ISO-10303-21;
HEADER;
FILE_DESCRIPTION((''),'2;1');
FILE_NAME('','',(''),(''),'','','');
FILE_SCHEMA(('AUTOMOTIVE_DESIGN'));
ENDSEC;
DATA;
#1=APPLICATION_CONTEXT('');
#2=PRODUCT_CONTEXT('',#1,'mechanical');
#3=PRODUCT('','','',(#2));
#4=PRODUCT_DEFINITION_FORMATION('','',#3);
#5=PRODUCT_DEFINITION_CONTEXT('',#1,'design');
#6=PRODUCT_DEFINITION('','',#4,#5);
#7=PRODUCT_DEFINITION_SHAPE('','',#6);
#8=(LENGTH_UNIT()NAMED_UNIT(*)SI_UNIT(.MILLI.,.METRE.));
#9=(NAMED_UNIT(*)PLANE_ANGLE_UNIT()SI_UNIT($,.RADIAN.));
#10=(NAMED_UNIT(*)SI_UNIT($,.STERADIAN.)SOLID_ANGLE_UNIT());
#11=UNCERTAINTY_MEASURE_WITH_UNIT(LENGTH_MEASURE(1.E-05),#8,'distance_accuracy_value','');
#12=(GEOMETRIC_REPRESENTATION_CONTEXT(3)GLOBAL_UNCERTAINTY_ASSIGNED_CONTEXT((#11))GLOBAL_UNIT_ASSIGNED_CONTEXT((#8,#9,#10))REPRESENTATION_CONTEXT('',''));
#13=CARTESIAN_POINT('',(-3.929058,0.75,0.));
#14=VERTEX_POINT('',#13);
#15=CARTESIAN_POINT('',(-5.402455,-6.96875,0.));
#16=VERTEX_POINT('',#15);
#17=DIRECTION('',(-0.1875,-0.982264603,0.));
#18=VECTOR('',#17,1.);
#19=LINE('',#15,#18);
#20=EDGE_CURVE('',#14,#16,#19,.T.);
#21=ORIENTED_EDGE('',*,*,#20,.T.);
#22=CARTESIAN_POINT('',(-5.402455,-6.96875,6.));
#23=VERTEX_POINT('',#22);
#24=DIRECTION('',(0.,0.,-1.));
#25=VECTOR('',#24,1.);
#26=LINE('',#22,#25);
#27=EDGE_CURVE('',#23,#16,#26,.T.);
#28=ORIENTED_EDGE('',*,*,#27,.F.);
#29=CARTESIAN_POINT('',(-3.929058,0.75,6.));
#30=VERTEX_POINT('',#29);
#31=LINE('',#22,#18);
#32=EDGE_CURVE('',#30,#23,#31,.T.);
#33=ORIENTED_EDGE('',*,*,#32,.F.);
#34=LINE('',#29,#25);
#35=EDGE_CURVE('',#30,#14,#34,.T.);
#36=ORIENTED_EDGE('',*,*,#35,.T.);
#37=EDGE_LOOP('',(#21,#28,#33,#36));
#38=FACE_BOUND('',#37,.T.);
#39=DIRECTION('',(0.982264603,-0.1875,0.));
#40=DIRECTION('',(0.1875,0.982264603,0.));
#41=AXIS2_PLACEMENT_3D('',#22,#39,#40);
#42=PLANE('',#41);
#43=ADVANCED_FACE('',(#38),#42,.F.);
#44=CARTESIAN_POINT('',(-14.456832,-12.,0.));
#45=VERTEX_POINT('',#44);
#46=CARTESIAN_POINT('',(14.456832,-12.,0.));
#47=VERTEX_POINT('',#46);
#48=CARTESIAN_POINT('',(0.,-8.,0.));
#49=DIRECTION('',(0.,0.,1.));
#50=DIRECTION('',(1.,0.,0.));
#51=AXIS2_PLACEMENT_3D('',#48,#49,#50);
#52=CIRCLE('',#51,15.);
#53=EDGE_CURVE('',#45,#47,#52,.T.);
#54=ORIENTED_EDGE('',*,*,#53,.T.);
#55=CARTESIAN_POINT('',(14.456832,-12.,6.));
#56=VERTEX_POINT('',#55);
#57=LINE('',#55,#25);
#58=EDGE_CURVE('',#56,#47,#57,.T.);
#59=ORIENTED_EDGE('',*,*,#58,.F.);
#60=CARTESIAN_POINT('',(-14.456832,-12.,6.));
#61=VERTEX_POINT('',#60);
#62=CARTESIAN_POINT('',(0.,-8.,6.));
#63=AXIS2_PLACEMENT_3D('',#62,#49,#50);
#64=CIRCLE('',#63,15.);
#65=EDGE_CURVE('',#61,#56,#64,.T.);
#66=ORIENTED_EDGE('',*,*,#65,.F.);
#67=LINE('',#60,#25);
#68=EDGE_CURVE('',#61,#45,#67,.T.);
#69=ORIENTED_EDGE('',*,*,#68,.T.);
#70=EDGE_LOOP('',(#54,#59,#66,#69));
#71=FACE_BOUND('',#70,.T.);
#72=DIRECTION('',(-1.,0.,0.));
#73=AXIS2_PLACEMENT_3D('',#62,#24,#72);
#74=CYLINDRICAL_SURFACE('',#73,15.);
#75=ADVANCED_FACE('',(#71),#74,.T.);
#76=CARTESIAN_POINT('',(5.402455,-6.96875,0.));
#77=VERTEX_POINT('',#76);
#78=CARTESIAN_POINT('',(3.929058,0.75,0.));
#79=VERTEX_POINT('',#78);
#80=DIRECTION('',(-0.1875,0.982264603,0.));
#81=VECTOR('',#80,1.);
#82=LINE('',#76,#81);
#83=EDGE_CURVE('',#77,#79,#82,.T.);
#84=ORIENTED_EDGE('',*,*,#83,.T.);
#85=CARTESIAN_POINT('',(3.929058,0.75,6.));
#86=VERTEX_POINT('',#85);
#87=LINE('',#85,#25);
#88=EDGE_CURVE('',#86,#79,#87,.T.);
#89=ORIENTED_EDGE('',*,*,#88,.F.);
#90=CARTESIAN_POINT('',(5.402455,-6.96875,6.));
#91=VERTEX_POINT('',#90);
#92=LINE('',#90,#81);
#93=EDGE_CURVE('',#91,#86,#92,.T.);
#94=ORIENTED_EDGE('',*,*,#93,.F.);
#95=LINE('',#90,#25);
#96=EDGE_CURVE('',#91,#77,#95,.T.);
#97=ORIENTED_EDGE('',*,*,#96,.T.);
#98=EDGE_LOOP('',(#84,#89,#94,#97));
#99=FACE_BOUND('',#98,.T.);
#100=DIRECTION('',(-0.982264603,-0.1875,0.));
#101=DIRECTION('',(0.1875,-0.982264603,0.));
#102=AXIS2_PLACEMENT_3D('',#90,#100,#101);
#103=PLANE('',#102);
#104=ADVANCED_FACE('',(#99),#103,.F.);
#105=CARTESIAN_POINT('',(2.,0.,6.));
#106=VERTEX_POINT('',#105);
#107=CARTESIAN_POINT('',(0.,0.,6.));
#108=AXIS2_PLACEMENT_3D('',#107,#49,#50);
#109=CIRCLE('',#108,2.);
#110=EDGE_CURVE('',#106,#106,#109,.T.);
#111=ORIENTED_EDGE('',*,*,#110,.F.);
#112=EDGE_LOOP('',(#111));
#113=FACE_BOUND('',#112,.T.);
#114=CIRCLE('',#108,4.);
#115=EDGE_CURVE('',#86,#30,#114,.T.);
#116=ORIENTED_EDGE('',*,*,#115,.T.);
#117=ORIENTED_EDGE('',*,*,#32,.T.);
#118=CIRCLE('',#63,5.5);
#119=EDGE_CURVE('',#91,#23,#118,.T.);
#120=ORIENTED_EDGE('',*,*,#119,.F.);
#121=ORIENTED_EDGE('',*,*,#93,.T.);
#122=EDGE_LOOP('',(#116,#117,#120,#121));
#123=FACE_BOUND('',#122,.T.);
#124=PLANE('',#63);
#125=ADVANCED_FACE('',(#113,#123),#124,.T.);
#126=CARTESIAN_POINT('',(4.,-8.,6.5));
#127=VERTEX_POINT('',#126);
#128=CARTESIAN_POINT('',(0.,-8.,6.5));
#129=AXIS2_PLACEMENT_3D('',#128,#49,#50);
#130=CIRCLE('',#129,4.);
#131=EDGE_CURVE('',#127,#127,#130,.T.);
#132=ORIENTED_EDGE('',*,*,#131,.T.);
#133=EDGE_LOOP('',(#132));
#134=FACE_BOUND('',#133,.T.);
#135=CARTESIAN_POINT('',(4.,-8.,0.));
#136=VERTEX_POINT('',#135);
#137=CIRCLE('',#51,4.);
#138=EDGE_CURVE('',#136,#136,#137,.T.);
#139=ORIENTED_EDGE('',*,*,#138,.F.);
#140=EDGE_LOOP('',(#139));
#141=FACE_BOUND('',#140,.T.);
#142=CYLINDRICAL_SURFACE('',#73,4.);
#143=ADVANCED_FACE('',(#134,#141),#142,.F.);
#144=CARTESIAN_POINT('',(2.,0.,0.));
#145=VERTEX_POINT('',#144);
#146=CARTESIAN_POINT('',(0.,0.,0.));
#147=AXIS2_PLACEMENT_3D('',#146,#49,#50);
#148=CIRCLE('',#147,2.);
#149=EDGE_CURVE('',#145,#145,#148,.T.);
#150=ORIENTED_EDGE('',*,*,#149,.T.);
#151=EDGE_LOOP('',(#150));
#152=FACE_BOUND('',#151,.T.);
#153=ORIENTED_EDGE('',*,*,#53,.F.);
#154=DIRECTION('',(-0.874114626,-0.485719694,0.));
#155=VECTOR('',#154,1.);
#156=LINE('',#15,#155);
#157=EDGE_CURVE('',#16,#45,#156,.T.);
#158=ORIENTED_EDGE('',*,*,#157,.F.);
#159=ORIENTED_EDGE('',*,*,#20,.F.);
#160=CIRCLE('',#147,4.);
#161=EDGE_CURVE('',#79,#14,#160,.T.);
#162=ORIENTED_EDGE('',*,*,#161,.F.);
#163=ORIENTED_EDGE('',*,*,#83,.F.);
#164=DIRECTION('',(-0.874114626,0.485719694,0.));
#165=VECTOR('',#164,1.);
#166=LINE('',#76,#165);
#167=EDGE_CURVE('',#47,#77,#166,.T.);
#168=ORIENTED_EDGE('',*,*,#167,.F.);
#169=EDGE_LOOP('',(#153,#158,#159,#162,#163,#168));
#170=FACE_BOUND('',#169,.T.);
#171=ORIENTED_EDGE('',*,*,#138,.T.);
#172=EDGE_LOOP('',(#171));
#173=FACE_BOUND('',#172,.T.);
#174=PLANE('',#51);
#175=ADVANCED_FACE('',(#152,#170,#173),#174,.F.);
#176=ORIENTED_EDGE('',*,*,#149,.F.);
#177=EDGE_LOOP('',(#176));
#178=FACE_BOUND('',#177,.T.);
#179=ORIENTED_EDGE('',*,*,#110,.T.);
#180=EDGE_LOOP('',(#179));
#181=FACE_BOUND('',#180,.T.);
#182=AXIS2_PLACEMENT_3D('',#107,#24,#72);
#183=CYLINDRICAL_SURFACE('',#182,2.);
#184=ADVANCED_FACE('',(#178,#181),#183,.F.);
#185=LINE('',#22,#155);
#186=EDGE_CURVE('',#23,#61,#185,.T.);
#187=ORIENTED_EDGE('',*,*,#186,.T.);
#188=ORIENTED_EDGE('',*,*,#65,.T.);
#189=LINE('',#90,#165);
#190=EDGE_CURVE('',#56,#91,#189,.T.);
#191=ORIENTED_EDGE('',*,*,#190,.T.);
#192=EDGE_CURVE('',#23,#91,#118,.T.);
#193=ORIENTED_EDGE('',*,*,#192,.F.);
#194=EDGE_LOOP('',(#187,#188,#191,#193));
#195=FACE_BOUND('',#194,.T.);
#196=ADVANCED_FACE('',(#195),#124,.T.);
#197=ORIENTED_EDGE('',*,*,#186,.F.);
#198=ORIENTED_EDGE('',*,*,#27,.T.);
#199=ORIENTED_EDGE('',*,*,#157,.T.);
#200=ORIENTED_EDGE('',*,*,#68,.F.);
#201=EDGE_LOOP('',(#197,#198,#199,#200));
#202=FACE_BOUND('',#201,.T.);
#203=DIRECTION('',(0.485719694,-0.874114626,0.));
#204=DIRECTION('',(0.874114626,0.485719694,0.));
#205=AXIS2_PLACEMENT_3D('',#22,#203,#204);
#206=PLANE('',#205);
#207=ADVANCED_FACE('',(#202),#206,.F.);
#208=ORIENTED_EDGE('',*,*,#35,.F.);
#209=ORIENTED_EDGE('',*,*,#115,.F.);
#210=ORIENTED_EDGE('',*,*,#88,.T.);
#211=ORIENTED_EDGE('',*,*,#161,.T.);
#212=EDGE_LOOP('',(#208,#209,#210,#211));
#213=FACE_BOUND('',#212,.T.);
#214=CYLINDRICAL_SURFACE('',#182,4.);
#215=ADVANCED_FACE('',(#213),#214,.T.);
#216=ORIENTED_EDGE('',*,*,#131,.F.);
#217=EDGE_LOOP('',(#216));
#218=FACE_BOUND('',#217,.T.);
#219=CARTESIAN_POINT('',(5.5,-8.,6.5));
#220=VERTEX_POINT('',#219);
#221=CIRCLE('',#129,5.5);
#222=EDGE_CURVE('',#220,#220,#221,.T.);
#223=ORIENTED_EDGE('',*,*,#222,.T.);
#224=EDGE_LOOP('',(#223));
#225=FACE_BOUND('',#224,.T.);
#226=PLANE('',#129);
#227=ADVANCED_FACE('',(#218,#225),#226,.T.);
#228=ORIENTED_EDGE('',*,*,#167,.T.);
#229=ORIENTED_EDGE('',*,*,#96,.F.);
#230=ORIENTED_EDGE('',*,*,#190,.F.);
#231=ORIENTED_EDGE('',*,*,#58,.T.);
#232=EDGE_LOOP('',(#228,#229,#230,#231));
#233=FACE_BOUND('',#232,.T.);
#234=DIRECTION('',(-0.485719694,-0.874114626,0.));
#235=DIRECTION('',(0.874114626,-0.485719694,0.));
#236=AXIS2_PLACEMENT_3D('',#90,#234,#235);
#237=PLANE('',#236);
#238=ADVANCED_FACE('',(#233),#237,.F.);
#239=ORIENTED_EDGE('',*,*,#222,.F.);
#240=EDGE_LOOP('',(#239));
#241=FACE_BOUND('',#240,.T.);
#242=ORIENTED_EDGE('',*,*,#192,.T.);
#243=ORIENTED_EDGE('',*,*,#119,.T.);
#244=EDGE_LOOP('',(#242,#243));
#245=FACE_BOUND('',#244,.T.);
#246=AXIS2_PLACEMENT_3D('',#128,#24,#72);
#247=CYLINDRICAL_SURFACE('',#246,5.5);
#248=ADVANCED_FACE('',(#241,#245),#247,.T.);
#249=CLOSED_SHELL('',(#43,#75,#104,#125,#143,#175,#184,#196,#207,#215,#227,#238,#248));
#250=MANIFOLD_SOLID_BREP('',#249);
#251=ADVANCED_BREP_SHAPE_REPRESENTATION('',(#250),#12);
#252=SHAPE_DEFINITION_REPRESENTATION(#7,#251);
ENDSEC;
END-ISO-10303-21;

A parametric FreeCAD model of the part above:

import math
import FreeCAD as App
import Part
import Sketcher

V = App.Vector
Q = App.Units.Quantity

doc = App.newDocument("Part")
params = doc.addObject("Spreadsheet::Sheet", "Params")
for row, (alias, value) in enumerate([
    ("sketch1_diameter", "8 mm"),
    ("sketch1_diameter2", "4 mm"),
    ("sketch1_radius", "15 mm"),
    ("pad1_length", "6 mm"),
    ("sketch2_diameter", "11 mm"),
    ("pad2_length", "0.5 mm"),
    ("sketch3_diameter", "8 mm"),
    ("pocket1_length", "10.5 mm"),
], start=1):
    params.set(f"A{row}", alias)
    params.set(f"B{row}", "=" + value)
    params.setAlias(f"B{row}", alias)

body = doc.addObject("PartDesign::Body", "Body")

sketch1 = body.newObject("Sketcher::SketchObject", "Sketch")
sketch1.AttachmentSupport = (doc.getObject("XY_Plane"), [""])
sketch1.MapMode = "FlatFace"
sketch1.addGeometry([
    Part.LineSegment(V(-3.9, 0.8, 0), V(-5.4, -7, 0)),
    Part.LineSegment(V(-5.4, -7, 0), V(-14.5, -12, 0)),
    Part.ArcOfCircle(Part.Circle(V(0, -8, 0), V(0, 0, 1), 15), math.radians(-165), math.radians(-15)),
    Part.LineSegment(V(14.5, -12, 0), V(5.4, -7, 0)),
    Part.LineSegment(V(5.4, -7, 0), V(3.9, 0.8, 0)),
    Part.ArcOfCircle(Part.Circle(V(0, 0, 0), V(0, 0, 1), 4), math.radians(11), math.radians(169)),
    Part.Circle(V(0, -8, 0), V(0, 0, 1), 4),
    Part.Circle(V(0, 0, 0), V(0, 0, 1), 2),
], False)
sketch1.addConstraint([
    Sketcher.Constraint("Coincident", 0, 2, 1, 1),
    Sketcher.Constraint("Coincident", 1, 2, 2, 1),
    Sketcher.Constraint("Coincident", 2, 2, 3, 1),
    Sketcher.Constraint("Coincident", 3, 2, 4, 1),
    Sketcher.Constraint("Tangent", 4, 2, 5, 1),
    Sketcher.Constraint("Tangent", 5, 2, 0, 1),
    Sketcher.Constraint("Coincident", 5, 3, -1, 1),
    Sketcher.Constraint("Coincident", 7, 3, -1, 1),
    Sketcher.Constraint("Coincident", 6, 3, 2, 3),
    Sketcher.Constraint("Equal", 5, 6),
    Sketcher.Constraint("Symmetric", 1, 2, 2, 2, -2),
    Sketcher.Constraint("Symmetric", 0, 2, 3, 2, -2),
    Sketcher.Constraint("Diameter", 6, Q("8 mm")),
    Sketcher.Constraint("Diameter", 7, Q("4 mm")),
    Sketcher.Constraint("Radius", 2, Q("15 mm")),
    Sketcher.Constraint("DistanceY", 2, 3, -1, 1, Q("8 mm")),
    Sketcher.Constraint("DistanceY", 1, 2, -1, 1, Q("12 mm")),
    Sketcher.Constraint("DistanceY", -1, 1, 4, 2, Q("0.75 mm")),
    Sketcher.Constraint("Distance", 1, Q("10.358341 mm")),
])
sketch1.setExpression("Constraints[12]", "Params.sketch1_diameter")
sketch1.setExpression("Constraints[13]", "Params.sketch1_diameter2")
sketch1.setExpression("Constraints[14]", "Params.sketch1_radius")
pad1 = body.newObject("PartDesign::Pad", "Pad")
pad1.Profile = sketch1
pad1.setExpression("Length", "Params.pad1_length")

sketch2 = body.newObject("Sketcher::SketchObject", "Sketch001")
sketch2.AttachmentSupport = (doc.getObject("XY_Plane"), [""])
sketch2.MapMode = "FlatFace"
sketch2.AttachmentOffset = App.Placement(V(0, 0, 6), App.Rotation())
sketch2.addGeometry(Part.Circle(V(0, -8, 0), V(0, 0, 1), 6), False)
sketch2.addConstraint([
    Sketcher.Constraint("PointOnObject", 0, 3, -2),
    Sketcher.Constraint("Diameter", 0, Q("11 mm")),
    Sketcher.Constraint("DistanceY", 0, 3, -1, 1, Q("8 mm")),
])
sketch2.setExpression("Constraints[1]", "Params.sketch2_diameter")
pad2 = body.newObject("PartDesign::Pad", "Pad001")
pad2.Profile = sketch2
pad2.setExpression("Length", "Params.pad2_length")

sketch3 = body.newObject("Sketcher::SketchObject", "Sketch002")
sketch3.AttachmentSupport = (doc.getObject("XY_Plane"), [""])
sketch3.MapMode = "FlatFace"
sketch3.AttachmentOffset = App.Placement(V(0, 0, -4), App.Rotation())
sketch3.addGeometry(Part.Circle(V(0, -8, 0), V(0, 0, 1), 4), False)
sketch3.addConstraint([
    Sketcher.Constraint("PointOnObject", 0, 3, -2),
    Sketcher.Constraint("Diameter", 0, Q("8 mm")),
    Sketcher.Constraint("DistanceY", 0, 3, -1, 1, Q("8 mm")),
])
sketch3.setExpression("Constraints[1]", "Params.sketch3_diameter")
pocket1 = body.newObject("PartDesign::Pocket", "Pocket")
pocket1.Profile = sketch3
pocket1.setExpression("Length", "Params.pocket1_length")
pocket1.Reversed = True

doc.recompute()
